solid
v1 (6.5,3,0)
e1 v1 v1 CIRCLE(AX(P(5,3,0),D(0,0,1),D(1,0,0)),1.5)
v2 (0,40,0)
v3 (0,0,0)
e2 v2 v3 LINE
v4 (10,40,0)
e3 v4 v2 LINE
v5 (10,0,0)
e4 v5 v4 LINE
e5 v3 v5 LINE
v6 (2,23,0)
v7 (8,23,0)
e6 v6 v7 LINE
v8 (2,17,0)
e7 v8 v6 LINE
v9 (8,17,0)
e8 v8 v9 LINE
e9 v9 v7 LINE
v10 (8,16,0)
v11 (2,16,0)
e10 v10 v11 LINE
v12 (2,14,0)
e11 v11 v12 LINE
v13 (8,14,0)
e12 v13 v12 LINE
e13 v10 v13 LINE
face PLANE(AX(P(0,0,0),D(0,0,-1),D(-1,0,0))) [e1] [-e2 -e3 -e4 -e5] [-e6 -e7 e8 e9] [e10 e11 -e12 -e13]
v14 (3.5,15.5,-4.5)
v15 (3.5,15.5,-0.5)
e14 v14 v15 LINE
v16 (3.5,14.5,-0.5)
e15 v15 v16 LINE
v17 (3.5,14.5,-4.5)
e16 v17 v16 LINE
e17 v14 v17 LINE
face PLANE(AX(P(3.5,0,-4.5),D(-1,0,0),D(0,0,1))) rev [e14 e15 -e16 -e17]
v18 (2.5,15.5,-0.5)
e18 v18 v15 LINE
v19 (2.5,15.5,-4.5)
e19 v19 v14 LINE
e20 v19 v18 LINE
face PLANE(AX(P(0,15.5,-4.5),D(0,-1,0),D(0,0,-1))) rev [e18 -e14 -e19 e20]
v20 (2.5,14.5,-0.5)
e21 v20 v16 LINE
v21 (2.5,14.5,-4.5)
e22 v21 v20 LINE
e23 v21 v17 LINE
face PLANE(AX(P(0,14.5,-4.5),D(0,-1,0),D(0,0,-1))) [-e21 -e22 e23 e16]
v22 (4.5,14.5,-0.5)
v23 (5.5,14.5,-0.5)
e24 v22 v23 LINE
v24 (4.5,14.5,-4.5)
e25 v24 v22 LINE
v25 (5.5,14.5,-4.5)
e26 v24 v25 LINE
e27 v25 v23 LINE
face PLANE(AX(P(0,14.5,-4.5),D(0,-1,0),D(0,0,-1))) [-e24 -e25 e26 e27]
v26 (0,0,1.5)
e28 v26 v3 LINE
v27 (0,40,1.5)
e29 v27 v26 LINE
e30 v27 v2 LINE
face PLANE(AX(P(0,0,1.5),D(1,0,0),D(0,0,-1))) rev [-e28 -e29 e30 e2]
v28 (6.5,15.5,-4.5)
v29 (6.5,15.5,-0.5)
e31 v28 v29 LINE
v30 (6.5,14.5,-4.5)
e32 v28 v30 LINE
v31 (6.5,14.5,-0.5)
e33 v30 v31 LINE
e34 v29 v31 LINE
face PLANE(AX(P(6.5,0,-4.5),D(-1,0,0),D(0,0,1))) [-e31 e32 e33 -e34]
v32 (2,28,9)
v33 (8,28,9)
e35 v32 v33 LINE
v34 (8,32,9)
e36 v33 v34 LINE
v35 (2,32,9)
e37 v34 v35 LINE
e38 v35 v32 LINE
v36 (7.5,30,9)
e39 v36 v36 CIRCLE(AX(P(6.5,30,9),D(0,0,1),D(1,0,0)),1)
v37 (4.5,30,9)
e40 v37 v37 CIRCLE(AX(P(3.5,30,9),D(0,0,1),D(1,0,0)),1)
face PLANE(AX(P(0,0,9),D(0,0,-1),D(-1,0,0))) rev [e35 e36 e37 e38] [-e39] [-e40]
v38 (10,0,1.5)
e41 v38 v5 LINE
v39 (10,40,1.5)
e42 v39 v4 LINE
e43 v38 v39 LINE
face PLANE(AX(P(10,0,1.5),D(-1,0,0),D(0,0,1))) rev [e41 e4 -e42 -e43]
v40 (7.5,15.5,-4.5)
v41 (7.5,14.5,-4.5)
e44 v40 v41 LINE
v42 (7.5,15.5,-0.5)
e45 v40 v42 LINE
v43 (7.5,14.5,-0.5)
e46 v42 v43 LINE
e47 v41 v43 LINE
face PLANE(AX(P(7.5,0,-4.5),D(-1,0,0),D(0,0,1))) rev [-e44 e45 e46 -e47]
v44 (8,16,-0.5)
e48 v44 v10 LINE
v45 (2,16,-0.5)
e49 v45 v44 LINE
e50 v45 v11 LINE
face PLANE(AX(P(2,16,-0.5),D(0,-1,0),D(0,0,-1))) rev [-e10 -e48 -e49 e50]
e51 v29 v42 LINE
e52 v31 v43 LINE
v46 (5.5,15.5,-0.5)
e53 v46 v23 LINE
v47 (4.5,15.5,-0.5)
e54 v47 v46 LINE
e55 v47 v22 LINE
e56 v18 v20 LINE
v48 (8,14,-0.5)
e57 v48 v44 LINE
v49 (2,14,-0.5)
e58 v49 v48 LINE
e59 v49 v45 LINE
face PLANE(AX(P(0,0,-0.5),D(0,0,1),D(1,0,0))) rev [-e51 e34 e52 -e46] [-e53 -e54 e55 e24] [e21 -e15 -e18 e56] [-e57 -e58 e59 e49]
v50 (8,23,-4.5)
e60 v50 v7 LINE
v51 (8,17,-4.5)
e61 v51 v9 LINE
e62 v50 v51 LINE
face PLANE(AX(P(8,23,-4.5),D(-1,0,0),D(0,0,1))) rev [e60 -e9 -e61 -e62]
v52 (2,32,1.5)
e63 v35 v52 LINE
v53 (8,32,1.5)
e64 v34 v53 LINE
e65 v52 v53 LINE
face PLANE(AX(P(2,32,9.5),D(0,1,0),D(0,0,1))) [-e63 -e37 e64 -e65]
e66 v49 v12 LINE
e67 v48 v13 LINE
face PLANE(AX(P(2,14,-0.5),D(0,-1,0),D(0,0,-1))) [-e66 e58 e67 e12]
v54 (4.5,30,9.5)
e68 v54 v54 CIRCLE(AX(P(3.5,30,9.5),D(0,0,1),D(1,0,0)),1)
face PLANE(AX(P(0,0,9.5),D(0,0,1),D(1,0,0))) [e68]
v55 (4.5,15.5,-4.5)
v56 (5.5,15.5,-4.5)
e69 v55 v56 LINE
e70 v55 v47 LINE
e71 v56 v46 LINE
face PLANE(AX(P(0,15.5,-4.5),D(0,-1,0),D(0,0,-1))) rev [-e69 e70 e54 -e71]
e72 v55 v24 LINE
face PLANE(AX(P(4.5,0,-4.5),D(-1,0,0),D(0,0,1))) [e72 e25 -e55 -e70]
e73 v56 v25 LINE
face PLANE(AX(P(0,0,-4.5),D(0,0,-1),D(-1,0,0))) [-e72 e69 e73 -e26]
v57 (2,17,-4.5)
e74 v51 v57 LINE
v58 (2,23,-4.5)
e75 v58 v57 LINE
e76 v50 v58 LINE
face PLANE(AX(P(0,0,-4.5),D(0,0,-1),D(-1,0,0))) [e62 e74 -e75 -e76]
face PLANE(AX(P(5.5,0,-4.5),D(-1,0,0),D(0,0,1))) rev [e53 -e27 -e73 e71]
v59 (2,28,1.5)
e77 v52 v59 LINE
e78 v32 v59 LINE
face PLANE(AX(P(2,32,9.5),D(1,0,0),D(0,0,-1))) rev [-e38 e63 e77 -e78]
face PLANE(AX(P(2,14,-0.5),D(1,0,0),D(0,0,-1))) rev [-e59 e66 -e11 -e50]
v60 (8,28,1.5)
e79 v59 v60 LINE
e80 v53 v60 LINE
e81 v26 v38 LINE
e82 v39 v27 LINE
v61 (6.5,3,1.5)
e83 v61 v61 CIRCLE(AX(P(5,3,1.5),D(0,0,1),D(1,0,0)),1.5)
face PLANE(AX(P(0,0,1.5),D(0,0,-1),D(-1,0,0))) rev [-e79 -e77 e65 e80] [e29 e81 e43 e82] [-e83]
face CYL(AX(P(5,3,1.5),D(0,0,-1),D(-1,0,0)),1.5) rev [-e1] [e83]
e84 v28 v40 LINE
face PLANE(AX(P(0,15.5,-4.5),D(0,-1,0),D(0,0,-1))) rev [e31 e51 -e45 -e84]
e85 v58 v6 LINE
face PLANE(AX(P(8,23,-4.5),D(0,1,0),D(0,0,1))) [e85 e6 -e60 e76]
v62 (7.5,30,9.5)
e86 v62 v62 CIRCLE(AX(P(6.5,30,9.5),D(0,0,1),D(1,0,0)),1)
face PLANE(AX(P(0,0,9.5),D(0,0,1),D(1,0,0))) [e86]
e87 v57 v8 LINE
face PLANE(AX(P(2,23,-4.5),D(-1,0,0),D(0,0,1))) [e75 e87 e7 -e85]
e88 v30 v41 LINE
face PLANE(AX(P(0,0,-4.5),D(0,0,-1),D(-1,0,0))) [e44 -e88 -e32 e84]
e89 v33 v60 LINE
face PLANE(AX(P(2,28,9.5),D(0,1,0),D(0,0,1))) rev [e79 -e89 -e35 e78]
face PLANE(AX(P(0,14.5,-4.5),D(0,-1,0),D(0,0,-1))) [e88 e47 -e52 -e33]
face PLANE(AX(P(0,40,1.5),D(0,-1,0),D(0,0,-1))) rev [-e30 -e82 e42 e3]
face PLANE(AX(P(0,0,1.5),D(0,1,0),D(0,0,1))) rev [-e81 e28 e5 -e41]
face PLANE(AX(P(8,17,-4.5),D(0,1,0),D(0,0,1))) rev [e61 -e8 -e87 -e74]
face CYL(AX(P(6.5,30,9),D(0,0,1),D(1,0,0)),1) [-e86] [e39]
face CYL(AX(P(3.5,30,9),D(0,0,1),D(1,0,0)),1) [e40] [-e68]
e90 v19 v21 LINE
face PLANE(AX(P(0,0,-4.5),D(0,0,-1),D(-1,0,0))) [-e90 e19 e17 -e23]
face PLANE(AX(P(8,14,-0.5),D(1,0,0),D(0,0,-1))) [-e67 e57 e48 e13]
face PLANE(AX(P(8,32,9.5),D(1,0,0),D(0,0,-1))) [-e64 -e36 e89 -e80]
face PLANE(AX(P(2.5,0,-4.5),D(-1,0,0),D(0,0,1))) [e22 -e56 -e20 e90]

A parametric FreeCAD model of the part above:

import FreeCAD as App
import Part
import Sketcher
Q = App.Units.Quantity


def add_polygon(sketch, points):
    """Adds a closed chain of lines whose ends are joined by coincident constraints."""
    first, n = sketch.GeometryCount, len(points)
    for a, b in zip(points, points[1:] + points[:1]):
        sketch.addGeometry(Part.LineSegment(App.Vector(*a, 0), App.Vector(*b, 0)), False)
    for i in range(n):
        sketch.addConstraint(Sketcher.Constraint("Coincident", first + i, 2, first + (i + 1) % n, 1))

doc = App.newDocument("Part")
body = doc.addObject("PartDesign::Body", "Body")

sketch1 = doc.addObject("Sketcher::SketchObject", "Sketch")
body.addObject(sketch1)
sketch1.AttachmentSupport = (doc.XY_Plane, [""])
sketch1.MapMode = "FlatFace"
add_polygon(sketch1, [(0, 40), (0, 0), (10, 0), (10, 40)])
sketch1.addGeometry(Part.Circle(App.Vector(5, 3, 0), App.Vector(0, 0, 1), 1.5), False)
sketch1.addConstraint(Sketcher.Constraint("Vertical", 0))
sketch1.addConstraint(Sketcher.Constraint("Horizontal", 1))
sketch1.addConstraint(Sketcher.Constraint("Vertical", 2))
sketch1.addConstraint(Sketcher.Constraint("Horizontal", 3))
sketch1.addConstraint(Sketcher.Constraint("Coincident", 0, 2, -1, 1))
sketch1.addConstraint(Sketcher.Constraint("Diameter", 4, Q("3 mm")))
sketch1.addConstraint(Sketcher.Constraint("DistanceX", 1, 1, 1, 2, Q("10 mm")))
sketch1.addConstraint(Sketcher.Constraint("DistanceY", 0, 2, 0, 1, Q("40 mm")))
sketch1.addConstraint(Sketcher.Constraint("DistanceX", -1, 1, 4, 3, Q("5 mm")))
sketch1.addConstraint(Sketcher.Constraint("DistanceY", -1, 1, 4, 3, Q("3 mm")))
pad1 = doc.addObject("PartDesign::Pad", "Pad")
body.addObject(pad1)
pad1.Profile = sketch1
pad1.Length = 1.5

sketch2 = doc.addObject("Sketcher::SketchObject", "Sketch001")
body.addObject(sketch2)
sketch2.AttachmentSupport = (doc.XY_Plane, [""])
sketch2.MapMode = "FlatFace"
sketch2.AttachmentOffset = App.Placement(App.Vector(0, 0, 1.5), App.Rotation())
add_polygon(sketch2, [(2, 32), (2, 28), (8, 28), (8, 32)])
sketch2.addConstraint(Sketcher.Constraint("Vertical", 0))
sketch2.addConstraint(Sketcher.Constraint("Horizontal", 1))
sketch2.addConstraint(Sketcher.Constraint("Vertical", 2))
sketch2.addConstraint(Sketcher.Constraint("Horizontal", 3))
sketch2.addConstraint(Sketcher.Constraint("DistanceX", 1, 1, 1, 2, Q("6 mm")))
sketch2.addConstraint(Sketcher.Constraint("DistanceY", 0, 2, 0, 1, Q("4 mm")))
sketch2.addConstraint(Sketcher.Constraint("DistanceX", -1, 1, 0, 2, Q("2 mm")))
sketch2.addConstraint(Sketcher.Constraint("DistanceY", -1, 1, 0, 2, Q("28 mm")))
pad2 = doc.addObject("PartDesign::Pad", "Pad001")
body.addObject(pad2)
pad2.Profile = sketch2
pad2.Length = 8

sketch3 = doc.addObject("Sketcher::SketchObject", "Sketch002")
body.addObject(sketch3)
sketch3.AttachmentSupport = (doc.XY_Plane, [""])
sketch3.MapMode = "FlatFace"
sketch3.AttachmentOffset = App.Placement(App.Vector(0, 0, 1.5), App.Rotation())
add_polygon(sketch3, [(2, 23), (2, 17), (8, 17), (8, 23)])
sketch3.addConstraint(Sketcher.Constraint("Vertical", 0))
sketch3.addConstraint(Sketcher.Constraint("Horizontal", 1))
sketch3.addConstraint(Sketcher.Constraint("Vertical", 2))
sketch3.addConstraint(Sketcher.Constraint("Horizontal", 3))
sketch3.addConstraint(Sketcher.Constraint("Equal", 3, 0))
sketch3.addConstraint(Sketcher.Constraint("DistanceX", 1, 1, 1, 2, Q("6 mm")))
sketch3.addConstraint(Sketcher.Constraint("DistanceX", -1, 1, 0, 2, Q("2 mm")))
sketch3.addConstraint(Sketcher.Constraint("DistanceY", -1, 1, 0, 2, Q("17 mm")))
pad3 = doc.addObject("PartDesign::Pad", "Pad002")
body.addObject(pad3)
pad3.Profile = sketch3
pad3.Length = 6
pad3.Reversed = True

sketch4 = doc.addObject("Sketcher::SketchObject", "Sketch003")
body.addObject(sketch4)
sketch4.AttachmentSupport = (doc.XY_Plane, [""])
sketch4.MapMode = "FlatFace"
sketch4.AttachmentOffset = App.Placement(App.Vector(0, 0, 1.5), App.Rotation())
add_polygon(sketch4, [(2, 16), (2, 14), (8, 14), (8, 16)])
sketch4.addConstraint(Sketcher.Constraint("Vertical", 0))
sketch4.addConstraint(Sketcher.Constraint("Horizontal", 1))
sketch4.addConstraint(Sketcher.Constraint("Vertical", 2))
sketch4.addConstraint(Sketcher.Constraint("Horizontal", 3))
sketch4.addConstraint(Sketcher.Constraint("DistanceX", 1, 1, 1, 2, Q("6 mm")))
sketch4.addConstraint(Sketcher.Constraint("DistanceY", 0, 2, 0, 1, Q("2 mm")))
sketch4.addConstraint(Sketcher.Constraint("DistanceX", -1, 1, 0, 2, Q("2 mm")))
sketch4.addConstraint(Sketcher.Constraint("DistanceY", -1, 1, 0, 2, Q("14 mm")))
pad4 = doc.addObject("PartDesign::Pad", "Pad003")
body.addObject(pad4)
pad4.Profile = sketch4
pad4.Length = 2
pad4.Reversed = True

sketch5 = doc.addObject("Sketcher::SketchObject", "Sketch004")
body.addObject(sketch5)
sketch5.AttachmentSupport = (doc.XY_Plane, [""])
sketch5.MapMode = "FlatFace"
sketch5.AttachmentOffset = App.Placement(App.Vector(0, 0, -0.5), App.Rotation())
add_polygon(sketch5, [(5.5, 15.5), (5.5, 14.5), (4.5, 14.5), (4.5, 15.5)])
add_polygon(sketch5, [(7.5, 15.5), (7.5, 14.5), (6.5, 14.5), (6.5, 15.5)])
add_polygon(sketch5, [(3.5, 15.5), (3.5, 14.5), (2.5, 14.5), (2.5, 15.5)])
sketch5.addConstraint(Sketcher.Constraint("Vertical", 0))
sketch5.addConstraint(Sketcher.Constraint("Horizontal", 1))
sketch5.addConstraint(Sketcher.Constraint("Vertical", 2))
sketch5.addConstraint(Sketcher.Constraint("Horizontal", 3))
sketch5.addConstraint(Sketcher.Constraint("Vertical", 4))
sketch5.addConstraint(Sketcher.Constraint("Horizontal", 5))
sketch5.addConstraint(Sketcher.Constraint("Vertical", 6))
sketch5.addConstraint(Sketcher.Constraint("Horizontal", 7))
sketch5.addConstraint(Sketcher.Constraint("Vertical", 8))
sketch5.addConstraint(Sketcher.Constraint("Horizontal", 9))
sketch5.addConstraint(Sketcher.Constraint("Vertical", 10))
sketch5.addConstraint(Sketcher.Constraint("Horizontal", 11))
sketch5.addConstraint(Sketcher.Constraint("Horizontal", 1, 2, 4, 2))
sketch5.addConstraint(Sketcher.Constraint("Horizontal", 3, 2, 6, 2))
sketch5.addConstraint(Sketcher.Constraint("Horizontal", 5, 2, 8, 2))
sketch5.addConstraint(Sketcher.Constraint("Horizontal", 7, 2, 10, 2))
sketch5.addConstraint(Sketcher.Constraint("Equal", 3, 5))
sketch5.addConstraint(Sketcher.Constraint("Equal", 7, 9))
sketch5.addConstraint(Sketcher.Constraint("Equal", 11, 0))
sketch5.addConstraint(Sketcher.Constraint("DistanceX", 1, 2, 1, 1, Q("1 mm")))
sketch5.addConstraint(Sketcher.Constraint("DistanceX", 0, 2, 4, 2, Q("2 mm")))
sketch5.addConstraint(Sketcher.Constraint("DistanceX", 8, 2, 1, 2, Q("1 mm")))
sketch5.addConstraint(Sketcher.Constraint("DistanceX", -1, 1, 0, 2, Q("5.5 mm")))
sketch5.addConstraint(Sketcher.Constraint("DistanceY", -1, 1, 0, 2, Q("14.5 mm")))
pad5 = doc.addObject("PartDesign::Pad", "Pad004")
body.addObject(pad5)
pad5.Profile = sketch5
pad5.Length = 4
pad5.Reversed = True

sketch6 = doc.addObject("Sketcher::SketchObject", "Sketch005")
body.addObject(sketch6)
sketch6.AttachmentSupport = (doc.XY_Plane, [""])
sketch6.MapMode = "FlatFace"
sketch6.AttachmentOffset = App.Placement(App.Vector(0, 0, 9.5), App.Rotation())
add_polygon(sketch6, [(2, 32), (2, 28), (8, 28), (8, 32)])
sketch6.addGeometry(Part.Circle(App.Vector(3.5, 30, 0), App.Vector(0, 0, 1), 1), False)
sketch6.addGeometry(Part.Circle(App.Vector(6.5, 30, 0), App.Vector(0, 0, 1), 1), False)
sketch6.addConstraint(Sketcher.Constraint("Vertical", 0))
sketch6.addConstraint(Sketcher.Constraint("Horizontal", 1))
sketch6.addConstraint(Sketcher.Constraint("Vertical", 2))
sketch6.addConstraint(Sketcher.Constraint("Horizontal", 3))
sketch6.addConstraint(Sketcher.Constraint("Equal", 4, 5))
sketch6.addConstraint(Sketcher.Constraint("Horizontal", 4, 3, 5, 3))
sketch6.addConstraint(Sketcher.Constraint("Diameter", 4, Q("2 mm")))
sketch6.addConstraint(Sketcher.Constraint("DistanceX", 1, 1, 1, 2, Q("6 mm")))
sketch6.addConstraint(Sketcher.Constraint("DistanceY", 0, 2, 0, 1, Q("4 mm")))
sketch6.addConstraint(Sketcher.Constraint("DistanceY", -1, 1, 4, 3, Q("30 mm")))
sketch6.addConstraint(Sketcher.Constraint("DistanceX", -1, 1, 0, 2, Q("2 mm")))
sketch6.addConstraint(Sketcher.Constraint("DistanceY", -1, 1, 0, 2, Q("28 mm")))
sketch6.addConstraint(Sketcher.Constraint("DistanceX", 4, 3, 5, 3, Q("3 mm")))
sketch6.addConstraint(Sketcher.Constraint("DistanceX", -1, 1, 4, 3, Q("3.5 mm")))
pocket1 = doc.addObject("PartDesign::Pocket", "Pocket")
body.addObject(pocket1)
pocket1.Profile = sketch6
pocket1.Length = 0.5

doc.recompute()
